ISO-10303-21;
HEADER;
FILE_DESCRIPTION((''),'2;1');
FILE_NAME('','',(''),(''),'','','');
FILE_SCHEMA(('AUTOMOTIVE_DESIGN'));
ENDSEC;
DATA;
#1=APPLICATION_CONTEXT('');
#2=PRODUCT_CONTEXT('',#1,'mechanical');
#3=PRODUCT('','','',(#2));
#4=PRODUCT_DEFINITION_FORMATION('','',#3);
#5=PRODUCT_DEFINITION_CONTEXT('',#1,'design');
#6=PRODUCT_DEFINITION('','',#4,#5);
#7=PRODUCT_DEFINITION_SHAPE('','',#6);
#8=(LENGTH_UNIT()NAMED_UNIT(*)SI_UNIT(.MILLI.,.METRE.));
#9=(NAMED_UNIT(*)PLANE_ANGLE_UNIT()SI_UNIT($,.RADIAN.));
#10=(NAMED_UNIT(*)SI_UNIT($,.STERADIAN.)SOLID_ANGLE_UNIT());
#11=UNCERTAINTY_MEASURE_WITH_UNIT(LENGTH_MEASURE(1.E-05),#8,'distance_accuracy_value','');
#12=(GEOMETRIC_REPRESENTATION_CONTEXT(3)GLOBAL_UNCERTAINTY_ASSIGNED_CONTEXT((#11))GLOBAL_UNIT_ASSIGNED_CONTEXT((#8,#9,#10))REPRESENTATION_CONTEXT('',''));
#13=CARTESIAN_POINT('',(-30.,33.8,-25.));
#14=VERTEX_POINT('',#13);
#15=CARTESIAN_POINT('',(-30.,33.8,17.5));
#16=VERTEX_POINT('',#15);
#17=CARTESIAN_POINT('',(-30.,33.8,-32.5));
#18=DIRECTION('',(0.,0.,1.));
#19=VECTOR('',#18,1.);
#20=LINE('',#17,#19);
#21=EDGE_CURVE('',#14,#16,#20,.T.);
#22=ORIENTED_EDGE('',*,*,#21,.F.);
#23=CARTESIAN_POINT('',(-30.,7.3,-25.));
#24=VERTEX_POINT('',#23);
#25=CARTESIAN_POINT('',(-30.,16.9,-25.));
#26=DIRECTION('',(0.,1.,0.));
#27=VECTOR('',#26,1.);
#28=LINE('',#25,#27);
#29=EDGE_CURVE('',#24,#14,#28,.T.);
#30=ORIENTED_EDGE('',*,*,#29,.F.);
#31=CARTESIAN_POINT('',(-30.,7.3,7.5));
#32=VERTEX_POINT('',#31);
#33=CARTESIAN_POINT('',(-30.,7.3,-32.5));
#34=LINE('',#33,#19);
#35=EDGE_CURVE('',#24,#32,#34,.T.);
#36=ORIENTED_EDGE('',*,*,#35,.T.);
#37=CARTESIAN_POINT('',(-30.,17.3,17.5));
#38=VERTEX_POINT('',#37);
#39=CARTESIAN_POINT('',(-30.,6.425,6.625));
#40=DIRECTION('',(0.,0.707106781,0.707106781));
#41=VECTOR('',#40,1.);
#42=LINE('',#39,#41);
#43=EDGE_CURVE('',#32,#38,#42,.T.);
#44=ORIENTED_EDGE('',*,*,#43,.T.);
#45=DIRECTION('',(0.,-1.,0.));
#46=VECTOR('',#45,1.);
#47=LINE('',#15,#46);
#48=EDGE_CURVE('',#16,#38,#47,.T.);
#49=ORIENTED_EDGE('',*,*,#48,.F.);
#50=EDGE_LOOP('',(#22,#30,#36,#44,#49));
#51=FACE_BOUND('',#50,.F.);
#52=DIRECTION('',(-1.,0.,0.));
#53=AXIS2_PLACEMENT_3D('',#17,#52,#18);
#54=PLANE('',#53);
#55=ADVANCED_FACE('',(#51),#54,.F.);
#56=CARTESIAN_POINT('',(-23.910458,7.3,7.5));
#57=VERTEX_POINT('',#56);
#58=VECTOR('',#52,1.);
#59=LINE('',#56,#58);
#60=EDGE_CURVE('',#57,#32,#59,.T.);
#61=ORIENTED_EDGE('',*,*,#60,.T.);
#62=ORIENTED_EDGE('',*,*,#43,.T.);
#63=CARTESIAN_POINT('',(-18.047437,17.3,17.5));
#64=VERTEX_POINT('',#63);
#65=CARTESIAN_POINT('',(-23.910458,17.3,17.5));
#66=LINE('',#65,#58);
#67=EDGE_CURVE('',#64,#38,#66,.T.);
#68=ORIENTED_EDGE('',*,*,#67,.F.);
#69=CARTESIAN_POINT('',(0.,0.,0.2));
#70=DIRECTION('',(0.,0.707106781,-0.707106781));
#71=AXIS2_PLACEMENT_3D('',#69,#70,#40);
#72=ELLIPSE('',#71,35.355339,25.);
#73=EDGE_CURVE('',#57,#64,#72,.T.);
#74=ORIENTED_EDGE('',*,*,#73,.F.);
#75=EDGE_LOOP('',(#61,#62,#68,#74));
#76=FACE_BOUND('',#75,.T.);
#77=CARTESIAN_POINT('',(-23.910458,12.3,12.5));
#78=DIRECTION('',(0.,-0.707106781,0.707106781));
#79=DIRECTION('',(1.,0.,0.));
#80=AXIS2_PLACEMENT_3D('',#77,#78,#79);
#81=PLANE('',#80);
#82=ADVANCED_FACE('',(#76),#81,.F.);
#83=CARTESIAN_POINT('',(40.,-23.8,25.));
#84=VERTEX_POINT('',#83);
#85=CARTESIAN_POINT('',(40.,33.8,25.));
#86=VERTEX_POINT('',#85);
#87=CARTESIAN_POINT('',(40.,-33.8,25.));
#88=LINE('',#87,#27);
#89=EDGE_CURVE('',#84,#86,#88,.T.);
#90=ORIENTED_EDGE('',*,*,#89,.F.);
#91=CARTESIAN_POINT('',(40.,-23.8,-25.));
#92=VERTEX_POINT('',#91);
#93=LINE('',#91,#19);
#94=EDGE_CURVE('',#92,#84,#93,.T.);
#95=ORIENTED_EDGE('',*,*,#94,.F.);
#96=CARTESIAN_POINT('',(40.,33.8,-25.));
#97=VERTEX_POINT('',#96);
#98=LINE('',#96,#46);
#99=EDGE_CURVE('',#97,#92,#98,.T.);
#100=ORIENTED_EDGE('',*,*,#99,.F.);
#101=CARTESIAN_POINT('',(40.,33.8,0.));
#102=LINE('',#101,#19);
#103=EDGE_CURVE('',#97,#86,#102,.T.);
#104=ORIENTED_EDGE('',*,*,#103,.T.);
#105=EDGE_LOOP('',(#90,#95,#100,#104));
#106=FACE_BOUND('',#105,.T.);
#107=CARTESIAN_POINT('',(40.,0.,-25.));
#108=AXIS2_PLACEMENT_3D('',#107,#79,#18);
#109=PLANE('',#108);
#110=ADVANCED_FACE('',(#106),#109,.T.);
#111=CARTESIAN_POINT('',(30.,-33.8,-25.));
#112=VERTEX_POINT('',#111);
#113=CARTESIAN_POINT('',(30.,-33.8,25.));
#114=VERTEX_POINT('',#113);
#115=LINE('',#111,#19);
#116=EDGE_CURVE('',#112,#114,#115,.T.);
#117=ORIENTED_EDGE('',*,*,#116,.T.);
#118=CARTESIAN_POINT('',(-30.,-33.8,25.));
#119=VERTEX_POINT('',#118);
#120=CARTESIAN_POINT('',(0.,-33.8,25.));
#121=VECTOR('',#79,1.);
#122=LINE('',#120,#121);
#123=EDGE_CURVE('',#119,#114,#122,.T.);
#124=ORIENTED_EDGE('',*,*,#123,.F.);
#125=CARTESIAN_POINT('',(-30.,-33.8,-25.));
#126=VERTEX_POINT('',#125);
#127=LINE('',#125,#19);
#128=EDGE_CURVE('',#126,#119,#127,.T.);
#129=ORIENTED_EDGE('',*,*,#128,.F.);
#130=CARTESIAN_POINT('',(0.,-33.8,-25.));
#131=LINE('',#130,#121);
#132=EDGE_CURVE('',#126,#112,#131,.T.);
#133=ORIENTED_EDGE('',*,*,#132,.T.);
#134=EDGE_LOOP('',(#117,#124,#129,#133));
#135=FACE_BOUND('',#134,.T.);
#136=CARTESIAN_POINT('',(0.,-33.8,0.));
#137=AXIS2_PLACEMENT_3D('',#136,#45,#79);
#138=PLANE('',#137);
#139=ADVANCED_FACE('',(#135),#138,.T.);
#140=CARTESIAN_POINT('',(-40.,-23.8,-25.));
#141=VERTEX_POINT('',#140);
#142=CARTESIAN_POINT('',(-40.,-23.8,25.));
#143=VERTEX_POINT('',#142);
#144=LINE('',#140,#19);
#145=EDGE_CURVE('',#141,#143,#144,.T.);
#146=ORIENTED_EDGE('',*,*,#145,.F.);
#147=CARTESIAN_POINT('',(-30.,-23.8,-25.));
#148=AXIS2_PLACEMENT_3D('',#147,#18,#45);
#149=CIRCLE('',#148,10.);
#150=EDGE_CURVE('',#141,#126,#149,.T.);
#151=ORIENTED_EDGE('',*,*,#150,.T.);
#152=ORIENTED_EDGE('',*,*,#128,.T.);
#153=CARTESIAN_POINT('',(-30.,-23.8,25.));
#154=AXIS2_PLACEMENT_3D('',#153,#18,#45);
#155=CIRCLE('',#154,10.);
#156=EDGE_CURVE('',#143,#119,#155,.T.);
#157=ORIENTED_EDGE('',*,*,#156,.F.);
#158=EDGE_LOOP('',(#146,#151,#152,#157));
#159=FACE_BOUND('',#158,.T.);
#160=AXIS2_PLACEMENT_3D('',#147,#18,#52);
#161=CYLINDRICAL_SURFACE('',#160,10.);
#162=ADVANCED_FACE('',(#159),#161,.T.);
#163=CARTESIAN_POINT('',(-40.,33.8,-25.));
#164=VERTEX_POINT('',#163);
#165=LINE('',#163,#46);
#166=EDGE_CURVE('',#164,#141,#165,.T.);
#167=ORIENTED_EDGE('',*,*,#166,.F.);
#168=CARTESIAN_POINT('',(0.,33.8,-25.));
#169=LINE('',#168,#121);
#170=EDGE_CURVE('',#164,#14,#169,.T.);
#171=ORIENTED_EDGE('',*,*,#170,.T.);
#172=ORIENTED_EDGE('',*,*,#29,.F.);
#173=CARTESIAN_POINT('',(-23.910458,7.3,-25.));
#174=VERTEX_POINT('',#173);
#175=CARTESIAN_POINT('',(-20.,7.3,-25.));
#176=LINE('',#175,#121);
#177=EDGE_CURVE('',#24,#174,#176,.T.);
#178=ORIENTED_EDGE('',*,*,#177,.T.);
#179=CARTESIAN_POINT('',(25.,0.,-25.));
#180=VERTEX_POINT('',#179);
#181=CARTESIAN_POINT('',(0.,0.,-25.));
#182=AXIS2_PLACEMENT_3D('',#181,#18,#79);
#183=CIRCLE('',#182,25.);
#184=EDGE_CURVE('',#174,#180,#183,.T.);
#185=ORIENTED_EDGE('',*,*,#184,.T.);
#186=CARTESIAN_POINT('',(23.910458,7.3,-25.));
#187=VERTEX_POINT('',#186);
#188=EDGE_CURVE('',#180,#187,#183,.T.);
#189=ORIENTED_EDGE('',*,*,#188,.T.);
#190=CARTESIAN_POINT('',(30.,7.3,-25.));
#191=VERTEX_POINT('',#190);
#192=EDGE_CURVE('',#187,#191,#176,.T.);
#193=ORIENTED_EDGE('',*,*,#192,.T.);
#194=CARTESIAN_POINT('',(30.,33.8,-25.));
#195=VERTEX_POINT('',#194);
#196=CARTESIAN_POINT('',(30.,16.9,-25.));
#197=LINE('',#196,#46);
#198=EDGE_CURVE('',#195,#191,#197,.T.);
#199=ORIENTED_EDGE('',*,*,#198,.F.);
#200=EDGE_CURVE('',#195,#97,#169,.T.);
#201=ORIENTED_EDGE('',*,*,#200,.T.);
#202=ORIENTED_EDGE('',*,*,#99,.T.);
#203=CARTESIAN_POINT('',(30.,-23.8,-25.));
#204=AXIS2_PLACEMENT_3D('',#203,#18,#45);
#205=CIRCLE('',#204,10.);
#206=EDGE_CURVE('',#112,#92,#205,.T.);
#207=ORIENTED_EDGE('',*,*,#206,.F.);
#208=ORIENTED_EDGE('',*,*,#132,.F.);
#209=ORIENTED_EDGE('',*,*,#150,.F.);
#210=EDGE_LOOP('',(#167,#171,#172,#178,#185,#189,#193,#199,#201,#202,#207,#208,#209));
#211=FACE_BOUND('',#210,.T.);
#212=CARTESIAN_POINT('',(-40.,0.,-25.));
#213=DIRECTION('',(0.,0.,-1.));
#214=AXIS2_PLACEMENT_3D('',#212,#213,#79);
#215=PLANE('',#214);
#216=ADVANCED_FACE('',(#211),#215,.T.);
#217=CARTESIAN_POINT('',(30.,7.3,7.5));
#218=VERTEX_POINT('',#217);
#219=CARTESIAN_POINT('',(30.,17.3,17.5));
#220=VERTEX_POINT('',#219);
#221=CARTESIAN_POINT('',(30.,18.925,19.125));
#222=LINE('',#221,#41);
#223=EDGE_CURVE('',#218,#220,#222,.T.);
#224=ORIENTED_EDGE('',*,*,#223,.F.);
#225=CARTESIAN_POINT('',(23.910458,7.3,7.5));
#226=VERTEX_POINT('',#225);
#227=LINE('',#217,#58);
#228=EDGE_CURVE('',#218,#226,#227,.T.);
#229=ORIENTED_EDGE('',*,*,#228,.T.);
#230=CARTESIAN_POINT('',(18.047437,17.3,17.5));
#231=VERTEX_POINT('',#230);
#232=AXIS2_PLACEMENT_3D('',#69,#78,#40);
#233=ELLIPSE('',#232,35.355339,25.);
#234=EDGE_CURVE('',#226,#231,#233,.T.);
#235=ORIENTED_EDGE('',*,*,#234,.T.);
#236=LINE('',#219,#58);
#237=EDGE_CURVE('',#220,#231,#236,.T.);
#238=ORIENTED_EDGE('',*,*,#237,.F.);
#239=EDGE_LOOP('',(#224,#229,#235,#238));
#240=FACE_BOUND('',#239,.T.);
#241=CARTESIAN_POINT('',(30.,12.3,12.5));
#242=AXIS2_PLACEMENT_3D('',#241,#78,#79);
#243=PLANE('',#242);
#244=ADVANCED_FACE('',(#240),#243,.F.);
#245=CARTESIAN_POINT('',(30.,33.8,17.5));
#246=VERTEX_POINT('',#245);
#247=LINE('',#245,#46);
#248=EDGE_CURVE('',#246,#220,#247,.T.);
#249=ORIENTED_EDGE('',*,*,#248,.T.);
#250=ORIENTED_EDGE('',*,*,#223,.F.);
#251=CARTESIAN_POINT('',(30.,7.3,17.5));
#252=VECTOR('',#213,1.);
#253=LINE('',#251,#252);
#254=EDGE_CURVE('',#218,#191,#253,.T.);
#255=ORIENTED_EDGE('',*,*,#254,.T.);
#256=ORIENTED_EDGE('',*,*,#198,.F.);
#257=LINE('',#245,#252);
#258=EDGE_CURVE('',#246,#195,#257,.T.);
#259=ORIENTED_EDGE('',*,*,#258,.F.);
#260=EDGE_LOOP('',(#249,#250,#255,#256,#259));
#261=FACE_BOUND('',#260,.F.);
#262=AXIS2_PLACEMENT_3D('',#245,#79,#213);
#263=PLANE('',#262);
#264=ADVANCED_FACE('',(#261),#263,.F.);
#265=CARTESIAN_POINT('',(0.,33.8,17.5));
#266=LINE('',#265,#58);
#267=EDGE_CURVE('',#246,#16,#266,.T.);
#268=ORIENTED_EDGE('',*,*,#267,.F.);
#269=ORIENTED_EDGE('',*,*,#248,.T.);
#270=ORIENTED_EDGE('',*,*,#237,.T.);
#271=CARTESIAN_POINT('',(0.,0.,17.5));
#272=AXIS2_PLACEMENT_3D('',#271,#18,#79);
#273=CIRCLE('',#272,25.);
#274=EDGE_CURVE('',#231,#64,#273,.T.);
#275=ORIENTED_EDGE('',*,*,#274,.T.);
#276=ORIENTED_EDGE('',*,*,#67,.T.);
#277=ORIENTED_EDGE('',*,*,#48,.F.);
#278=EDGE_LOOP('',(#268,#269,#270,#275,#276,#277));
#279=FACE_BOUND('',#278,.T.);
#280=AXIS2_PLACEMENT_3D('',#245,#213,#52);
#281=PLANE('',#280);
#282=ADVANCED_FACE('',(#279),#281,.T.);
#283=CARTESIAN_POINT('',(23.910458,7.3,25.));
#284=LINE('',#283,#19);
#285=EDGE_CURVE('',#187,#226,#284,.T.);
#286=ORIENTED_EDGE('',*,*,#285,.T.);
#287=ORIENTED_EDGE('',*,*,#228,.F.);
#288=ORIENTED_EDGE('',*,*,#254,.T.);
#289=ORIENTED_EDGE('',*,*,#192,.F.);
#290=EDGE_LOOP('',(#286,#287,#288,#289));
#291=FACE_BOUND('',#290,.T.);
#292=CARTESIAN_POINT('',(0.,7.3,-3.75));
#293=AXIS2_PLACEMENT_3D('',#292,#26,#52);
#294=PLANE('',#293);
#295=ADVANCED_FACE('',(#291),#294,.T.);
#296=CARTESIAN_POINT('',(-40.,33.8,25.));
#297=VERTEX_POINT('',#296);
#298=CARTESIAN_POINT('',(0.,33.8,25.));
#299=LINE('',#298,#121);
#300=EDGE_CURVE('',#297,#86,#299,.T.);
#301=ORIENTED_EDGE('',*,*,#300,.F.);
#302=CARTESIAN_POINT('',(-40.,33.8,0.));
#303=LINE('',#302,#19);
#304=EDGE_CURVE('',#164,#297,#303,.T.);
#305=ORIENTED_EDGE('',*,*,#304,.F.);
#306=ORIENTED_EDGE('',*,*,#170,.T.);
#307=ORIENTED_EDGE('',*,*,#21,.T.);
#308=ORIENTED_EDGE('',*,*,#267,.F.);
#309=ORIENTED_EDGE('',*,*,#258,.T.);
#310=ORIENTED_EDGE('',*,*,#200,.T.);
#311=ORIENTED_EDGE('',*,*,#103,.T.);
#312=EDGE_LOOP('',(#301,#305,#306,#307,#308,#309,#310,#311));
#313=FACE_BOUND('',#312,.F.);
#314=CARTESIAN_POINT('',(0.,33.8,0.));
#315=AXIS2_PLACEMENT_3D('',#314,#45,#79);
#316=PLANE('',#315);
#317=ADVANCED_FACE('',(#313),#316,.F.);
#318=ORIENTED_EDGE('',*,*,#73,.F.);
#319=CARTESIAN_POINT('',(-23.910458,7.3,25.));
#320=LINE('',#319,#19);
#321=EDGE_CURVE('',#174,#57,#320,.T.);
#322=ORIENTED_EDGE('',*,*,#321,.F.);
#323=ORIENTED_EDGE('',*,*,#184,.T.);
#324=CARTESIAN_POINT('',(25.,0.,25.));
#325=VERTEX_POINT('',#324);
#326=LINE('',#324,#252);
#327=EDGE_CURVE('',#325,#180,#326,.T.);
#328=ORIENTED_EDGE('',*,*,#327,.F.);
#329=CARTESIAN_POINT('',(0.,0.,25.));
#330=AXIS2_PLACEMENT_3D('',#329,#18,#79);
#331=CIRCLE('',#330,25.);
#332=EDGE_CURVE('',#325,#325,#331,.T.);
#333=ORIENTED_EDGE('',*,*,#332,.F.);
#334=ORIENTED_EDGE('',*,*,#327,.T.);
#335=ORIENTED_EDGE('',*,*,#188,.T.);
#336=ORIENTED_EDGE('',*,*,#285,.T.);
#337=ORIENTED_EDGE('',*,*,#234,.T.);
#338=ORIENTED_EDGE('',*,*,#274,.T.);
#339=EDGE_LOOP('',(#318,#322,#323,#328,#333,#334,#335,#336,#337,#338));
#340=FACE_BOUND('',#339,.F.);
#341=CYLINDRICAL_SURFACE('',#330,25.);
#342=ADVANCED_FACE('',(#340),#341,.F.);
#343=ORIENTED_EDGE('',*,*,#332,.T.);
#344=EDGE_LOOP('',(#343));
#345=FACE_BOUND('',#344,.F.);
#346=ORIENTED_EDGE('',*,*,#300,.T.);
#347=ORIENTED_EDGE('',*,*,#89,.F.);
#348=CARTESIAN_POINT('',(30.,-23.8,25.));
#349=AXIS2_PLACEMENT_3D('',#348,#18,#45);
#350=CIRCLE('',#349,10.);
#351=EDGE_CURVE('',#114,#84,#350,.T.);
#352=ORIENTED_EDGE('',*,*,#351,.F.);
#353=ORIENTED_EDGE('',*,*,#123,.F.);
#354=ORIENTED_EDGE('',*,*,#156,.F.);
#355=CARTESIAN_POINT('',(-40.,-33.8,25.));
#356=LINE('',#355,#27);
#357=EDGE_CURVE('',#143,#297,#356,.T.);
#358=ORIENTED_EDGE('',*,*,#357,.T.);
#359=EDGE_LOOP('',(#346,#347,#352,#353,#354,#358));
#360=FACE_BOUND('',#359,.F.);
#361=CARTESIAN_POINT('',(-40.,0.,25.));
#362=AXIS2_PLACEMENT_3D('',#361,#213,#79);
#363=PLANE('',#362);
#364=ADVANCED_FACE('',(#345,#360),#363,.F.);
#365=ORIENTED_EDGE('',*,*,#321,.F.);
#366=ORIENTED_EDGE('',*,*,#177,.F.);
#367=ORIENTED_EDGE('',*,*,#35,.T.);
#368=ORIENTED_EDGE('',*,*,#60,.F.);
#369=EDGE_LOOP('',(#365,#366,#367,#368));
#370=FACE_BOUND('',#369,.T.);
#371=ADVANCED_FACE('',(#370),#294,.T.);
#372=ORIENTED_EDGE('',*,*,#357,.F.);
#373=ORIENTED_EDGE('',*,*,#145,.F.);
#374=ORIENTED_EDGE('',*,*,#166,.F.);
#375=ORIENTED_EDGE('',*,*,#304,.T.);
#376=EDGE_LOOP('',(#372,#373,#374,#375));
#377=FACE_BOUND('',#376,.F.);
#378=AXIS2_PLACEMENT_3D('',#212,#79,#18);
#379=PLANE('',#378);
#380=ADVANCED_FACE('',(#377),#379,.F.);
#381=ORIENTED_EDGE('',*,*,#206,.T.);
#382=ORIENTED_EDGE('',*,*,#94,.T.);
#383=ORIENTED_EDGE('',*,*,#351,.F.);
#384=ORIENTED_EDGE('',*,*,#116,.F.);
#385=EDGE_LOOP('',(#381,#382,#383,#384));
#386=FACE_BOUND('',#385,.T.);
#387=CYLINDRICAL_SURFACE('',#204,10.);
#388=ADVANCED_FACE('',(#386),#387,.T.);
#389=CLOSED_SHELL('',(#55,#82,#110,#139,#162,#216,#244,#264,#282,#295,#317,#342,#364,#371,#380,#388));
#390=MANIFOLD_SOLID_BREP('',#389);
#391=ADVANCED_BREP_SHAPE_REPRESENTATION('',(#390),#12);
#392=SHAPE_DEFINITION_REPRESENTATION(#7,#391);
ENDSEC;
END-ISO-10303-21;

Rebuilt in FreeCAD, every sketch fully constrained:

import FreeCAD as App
import Part
import Sketcher

V = App.Vector


def edges_at(feature, points):
    """Names of the edges that pass closest to the given points."""
    edges = feature.Shape.Edges
    near = lambda p: min(range(len(edges)), key=lambda i: edges[i].distToShape(Part.Vertex(*p))[0])
    return sorted({f"Edge{near(p) + 1}" for p in points})


def add_polygon(sketch, points):
    """Adds a closed chain of lines whose ends are joined by coincident constraints."""
    first, n = sketch.GeometryCount, len(points)
    for a, b in zip(points, points[1:] + points[:1]):
        sketch.addGeometry(Part.LineSegment(App.Vector(*a, 0), App.Vector(*b, 0)), False)
    for i in range(n):
        sketch.addConstraint(Sketcher.Constraint("Coincident", first + i, 2, first + (i + 1) % n, 1))

doc = App.newDocument("Part")
body = doc.addObject("PartDesign::Body", "Body")

# Sketch on XZ plane
sketch1 = doc.addObject("Sketcher::SketchObject", "Sketch")
body.addObject(sketch1)
sketch1.AttachmentSupport = (doc.XZ_Plane, [""])
sketch1.MapMode = "FlatFace"
add_polygon(sketch1, [(-40, 25), (-40, -25), (40, -25), (40, 25)])  # lines 0-3
sketch1.addConstraint(Sketcher.Constraint("Vertical", 0))
sketch1.addConstraint(Sketcher.Constraint("Horizontal", 1))
sketch1.addConstraint(Sketcher.Constraint("Vertical", 2))
sketch1.addConstraint(Sketcher.Constraint("Horizontal", 3))
sketch1.addConstraint(Sketcher.Constraint("Symmetric", 0, 2, 2, 2, -1, 1))
sketch1.addConstraint(Sketcher.Constraint("DistanceX", 1, 1, 1, 2, 80.0))
sketch1.addConstraint(Sketcher.Constraint("DistanceY", 0, 2, 0, 1, 50.0))
pad1 = doc.addObject("PartDesign::Pad", "Pad")
body.addObject(pad1)
pad1.Profile = sketch1
pad1.Length = 67.6
pad1.Midplane = True

# Sketch on XY plane
sketch2 = doc.addObject("Sketcher::SketchObject", "Sketch001")
body.addObject(sketch2)
sketch2.AttachmentSupport = (doc.XY_Plane, [""])
sketch2.MapMode = "FlatFace"
sketch2.AttachmentOffset = App.Placement(V(0, 0, 25), App.Rotation())
sketch2.addGeometry(Part.Circle(V(0, 0, 0), V(0, 0, 1), 25), False)
sketch2.addConstraint(Sketcher.Constraint("Coincident", 0, 3, -1, 1))
sketch2.addConstraint(Sketcher.Constraint("Diameter", 0, 50.0))
pocket1 = doc.addObject("PartDesign::Pocket", "Pocket")
body.addObject(pocket1)
pocket1.Profile = sketch2
pocket1.Length = 104.1
doc.recompute()

fillet = doc.addObject("PartDesign::Fillet", "Fillet")
body.addObject(fillet)
fillet.Base = (pocket1, edges_at(pocket1, [(40, -33.8, 0), (-40, -33.8, 0)]))
fillet.Radius = 10

# Sketch on XZ plane
sketch3 = doc.addObject("Sketcher::SketchObject", "Sketch002")
body.addObject(sketch3)
sketch3.AttachmentSupport = (doc.XZ_Plane, [""])
sketch3.MapMode = "FlatFace"
sketch3.AttachmentOffset = App.Placement(V(0, 0, -33.8), App.Rotation())
add_polygon(sketch3, [(30, 18), (30, -32), (-30, -32), (-30, 18)])  # lines 0-3
sketch3.addConstraint(Sketcher.Constraint("Vertical", 0))
sketch3.addConstraint(Sketcher.Constraint("Horizontal", 1))
sketch3.addConstraint(Sketcher.Constraint("Vertical", 2))
sketch3.addConstraint(Sketcher.Constraint("Horizontal", 3))
sketch3.addConstraint(Sketcher.Constraint("DistanceX", 1, 2, 1, 1, 60.0))
sketch3.addConstraint(Sketcher.Constraint("DistanceY", 0, 2, 0, 1, 50.0))
sketch3.addConstraint(Sketcher.Constraint("DistanceX", -1, 1, 0, 2, 30.0))
sketch3.addConstraint(Sketcher.Constraint("DistanceY", 0, 2, -1, 1, 32.5))
pocket2 = doc.addObject("PartDesign::Pocket", "Pocket001")
body.addObject(pocket2)
pocket2.Profile = sketch3
pocket2.Length = 26.5
pocket2.Reversed = True
doc.recompute()

chamfer = doc.addObject("PartDesign::Chamfer", "Chamfer")
body.addObject(chamfer)
chamfer.Base = (pocket2, edges_at(pocket2, [(26.955, 7.3, 17.5), (-26.955, 7.3, 17.5)]))
chamfer.Size = 10

doc.recompute()
